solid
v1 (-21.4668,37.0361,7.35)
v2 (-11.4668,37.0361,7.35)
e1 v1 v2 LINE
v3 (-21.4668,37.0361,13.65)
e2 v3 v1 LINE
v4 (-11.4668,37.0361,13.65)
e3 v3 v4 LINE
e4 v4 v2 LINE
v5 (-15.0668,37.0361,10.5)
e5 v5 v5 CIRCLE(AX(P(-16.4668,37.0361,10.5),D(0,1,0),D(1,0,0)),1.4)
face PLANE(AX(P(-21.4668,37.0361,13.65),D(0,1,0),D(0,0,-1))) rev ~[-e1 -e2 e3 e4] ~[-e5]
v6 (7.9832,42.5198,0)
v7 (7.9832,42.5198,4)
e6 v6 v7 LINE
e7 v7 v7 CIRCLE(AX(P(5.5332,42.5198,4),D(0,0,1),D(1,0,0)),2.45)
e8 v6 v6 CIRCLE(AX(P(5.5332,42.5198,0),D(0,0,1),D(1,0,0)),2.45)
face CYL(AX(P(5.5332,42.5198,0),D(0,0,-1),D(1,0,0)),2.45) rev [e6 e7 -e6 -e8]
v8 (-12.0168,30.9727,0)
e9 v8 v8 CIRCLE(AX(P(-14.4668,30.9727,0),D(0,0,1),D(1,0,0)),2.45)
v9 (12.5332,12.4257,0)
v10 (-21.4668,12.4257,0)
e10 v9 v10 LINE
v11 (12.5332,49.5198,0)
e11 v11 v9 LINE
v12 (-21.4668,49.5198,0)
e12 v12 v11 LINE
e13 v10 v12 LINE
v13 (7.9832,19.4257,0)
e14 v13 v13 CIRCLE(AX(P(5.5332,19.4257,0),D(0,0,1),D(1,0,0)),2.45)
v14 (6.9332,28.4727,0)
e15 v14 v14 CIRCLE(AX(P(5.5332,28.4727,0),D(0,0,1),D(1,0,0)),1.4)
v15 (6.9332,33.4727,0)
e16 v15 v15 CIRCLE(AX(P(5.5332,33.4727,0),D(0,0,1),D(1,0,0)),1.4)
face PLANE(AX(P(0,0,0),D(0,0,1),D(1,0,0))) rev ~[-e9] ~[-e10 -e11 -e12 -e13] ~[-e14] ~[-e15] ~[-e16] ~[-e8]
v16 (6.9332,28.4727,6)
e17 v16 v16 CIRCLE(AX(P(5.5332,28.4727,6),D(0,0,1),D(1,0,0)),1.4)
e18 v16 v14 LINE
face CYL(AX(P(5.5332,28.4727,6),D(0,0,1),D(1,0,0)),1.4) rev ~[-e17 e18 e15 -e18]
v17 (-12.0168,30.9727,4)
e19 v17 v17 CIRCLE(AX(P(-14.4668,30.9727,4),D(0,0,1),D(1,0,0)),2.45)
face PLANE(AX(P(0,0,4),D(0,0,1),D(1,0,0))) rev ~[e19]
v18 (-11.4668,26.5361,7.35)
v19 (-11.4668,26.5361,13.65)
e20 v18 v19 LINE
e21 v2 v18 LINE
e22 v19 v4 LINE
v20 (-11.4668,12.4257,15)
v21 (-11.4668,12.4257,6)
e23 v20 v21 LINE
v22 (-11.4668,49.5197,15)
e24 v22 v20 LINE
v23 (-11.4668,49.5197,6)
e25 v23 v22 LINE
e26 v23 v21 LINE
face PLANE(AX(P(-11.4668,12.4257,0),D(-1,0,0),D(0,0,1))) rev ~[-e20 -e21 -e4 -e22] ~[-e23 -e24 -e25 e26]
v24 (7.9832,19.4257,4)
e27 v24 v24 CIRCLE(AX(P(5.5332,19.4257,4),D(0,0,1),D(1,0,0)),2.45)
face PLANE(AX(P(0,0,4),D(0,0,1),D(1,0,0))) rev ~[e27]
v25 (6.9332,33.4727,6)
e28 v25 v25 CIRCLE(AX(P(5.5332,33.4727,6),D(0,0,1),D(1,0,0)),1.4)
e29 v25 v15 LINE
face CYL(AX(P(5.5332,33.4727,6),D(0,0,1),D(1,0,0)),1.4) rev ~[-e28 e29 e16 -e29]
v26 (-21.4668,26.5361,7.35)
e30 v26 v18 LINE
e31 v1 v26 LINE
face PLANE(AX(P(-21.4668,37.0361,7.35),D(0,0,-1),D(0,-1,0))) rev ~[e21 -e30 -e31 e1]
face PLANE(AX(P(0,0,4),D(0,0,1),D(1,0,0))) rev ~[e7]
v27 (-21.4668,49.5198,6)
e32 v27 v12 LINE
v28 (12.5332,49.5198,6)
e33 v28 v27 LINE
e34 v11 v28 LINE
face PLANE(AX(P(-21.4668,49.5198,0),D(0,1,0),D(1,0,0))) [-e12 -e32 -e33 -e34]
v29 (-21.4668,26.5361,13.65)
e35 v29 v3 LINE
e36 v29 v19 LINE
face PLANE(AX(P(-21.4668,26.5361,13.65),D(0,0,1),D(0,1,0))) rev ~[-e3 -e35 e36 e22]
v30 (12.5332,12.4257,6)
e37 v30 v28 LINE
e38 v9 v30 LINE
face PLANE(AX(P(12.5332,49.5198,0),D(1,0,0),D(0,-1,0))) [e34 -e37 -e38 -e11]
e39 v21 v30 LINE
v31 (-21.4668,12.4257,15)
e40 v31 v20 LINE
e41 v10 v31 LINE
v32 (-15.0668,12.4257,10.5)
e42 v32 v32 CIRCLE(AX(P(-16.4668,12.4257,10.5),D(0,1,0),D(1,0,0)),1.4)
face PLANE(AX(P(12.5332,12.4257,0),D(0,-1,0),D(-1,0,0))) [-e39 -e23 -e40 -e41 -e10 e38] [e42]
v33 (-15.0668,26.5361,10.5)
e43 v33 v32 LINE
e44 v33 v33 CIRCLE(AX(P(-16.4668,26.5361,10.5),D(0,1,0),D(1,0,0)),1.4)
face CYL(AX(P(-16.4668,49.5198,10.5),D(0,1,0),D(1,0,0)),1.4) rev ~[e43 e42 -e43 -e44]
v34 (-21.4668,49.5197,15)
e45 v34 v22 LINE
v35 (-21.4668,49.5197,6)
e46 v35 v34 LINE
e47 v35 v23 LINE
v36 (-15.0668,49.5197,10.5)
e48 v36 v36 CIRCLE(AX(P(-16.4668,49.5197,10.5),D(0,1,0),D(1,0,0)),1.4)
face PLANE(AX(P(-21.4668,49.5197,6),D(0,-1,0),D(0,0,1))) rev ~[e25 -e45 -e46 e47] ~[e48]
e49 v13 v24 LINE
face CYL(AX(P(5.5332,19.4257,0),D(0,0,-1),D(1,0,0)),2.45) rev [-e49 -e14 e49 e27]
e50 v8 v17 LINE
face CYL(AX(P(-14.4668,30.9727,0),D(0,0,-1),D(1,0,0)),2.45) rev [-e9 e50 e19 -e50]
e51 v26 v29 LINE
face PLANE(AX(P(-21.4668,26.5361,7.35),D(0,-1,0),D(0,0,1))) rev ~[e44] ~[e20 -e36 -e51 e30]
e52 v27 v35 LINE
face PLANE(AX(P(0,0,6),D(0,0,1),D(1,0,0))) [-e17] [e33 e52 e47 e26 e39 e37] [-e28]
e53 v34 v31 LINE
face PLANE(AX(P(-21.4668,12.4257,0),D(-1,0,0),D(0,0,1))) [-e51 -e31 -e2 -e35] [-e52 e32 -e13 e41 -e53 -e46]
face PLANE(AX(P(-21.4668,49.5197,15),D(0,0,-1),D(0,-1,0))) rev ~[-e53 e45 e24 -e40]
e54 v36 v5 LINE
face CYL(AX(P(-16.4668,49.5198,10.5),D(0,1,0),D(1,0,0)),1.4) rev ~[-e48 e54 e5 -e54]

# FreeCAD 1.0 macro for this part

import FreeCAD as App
import Part
import Sketcher
Q = App.Units.Quantity

doc = App.newDocument("Part")
body = doc.addObject("PartDesign::Body", "Body")

# Sketch on XY plane
sketch1 = body.newObject("Sketcher::SketchObject", "Sketch")
sketch1.AttachmentSupport = (doc.getObject("XY_Plane"), [""])
sketch1.MapMode = "FlatFace"
sketch1.addGeometry([
    Part.LineSegment(App.Vector(-21.5, 12.4, 0), App.Vector(12.5, 12.4, 0)),  # 0
    Part.LineSegment(App.Vector(12.5, 12.4, 0), App.Vector(12.5, 49.5, 0)),  # 1
    Part.LineSegment(App.Vector(12.5, 49.5, 0), App.Vector(-21.5, 49.5, 0)),  # 2
    Part.LineSegment(App.Vector(-21.5, 49.5, 0), App.Vector(-21.5, 12.4, 0)),  # 3
    Part.Circle(App.Vector(-14.5, 31, 0), App.Vector(0, 0, 1), 2.5),  # 4
    Part.Circle(App.Vector(5.5, 19.4, 0), App.Vector(0, 0, 1), 2.5),  # 5
    Part.Circle(App.Vector(5.5, 42.5, 0), App.Vector(0, 0, 1), 2.5),  # 6
], False)
sketch1.addConstraint([
    Sketcher.Constraint("Coincident", 0, 2, 1, 1),
    Sketcher.Constraint("Coincident", 1, 2, 2, 1),
    Sketcher.Constraint("Coincident", 2, 2, 3, 1),
    Sketcher.Constraint("Coincident", 3, 2, 0, 1),
    Sketcher.Constraint("Horizontal", 0),
    Sketcher.Constraint("Vertical", 1),
    Sketcher.Constraint("Horizontal", 2),
    Sketcher.Constraint("Vertical", 3),
    Sketcher.Constraint("Equal", 4, 5),
    Sketcher.Constraint("Equal", 5, 6),
    Sketcher.Constraint("Vertical", 5, 3, 6, 3),
    Sketcher.Constraint("Diameter", 4, Q("4.9 mm")),
    Sketcher.Constraint("DistanceX", 5, 3, 0, 2, Q("7 mm")),
    Sketcher.Constraint("DistanceY", 0, 2, 5, 3, Q("7 mm")),
    Sketcher.Constraint("DistanceY", 6, 3, 1, 2, Q("7 mm")),
    Sketcher.Constraint("DistanceX", 2, 2, 4, 3, Q("7 mm")),
    Sketcher.Constraint("DistanceX", 0, 1, 0, 2, Q("34 mm")),
    Sketcher.Constraint("DistanceY", 1, 1, 1, 2, Q("37.094 mm")),
    Sketcher.Constraint("DistanceY", 5, 3, 4, 3, Q("11.547 mm")),
    Sketcher.Constraint("DistanceX", 4, 3, -1, 1, Q("14.4668 mm")),
    Sketcher.Constraint("DistanceY", -1, 1, 4, 3, Q("30.9727 mm")),
])
pad1 = body.newObject("PartDesign::Pad", "Pad")
pad1.Profile = sketch1
pad1.Length = 4

# Sketch on XY plane
sketch2 = body.newObject("Sketcher::SketchObject", "Sketch001")
sketch2.AttachmentSupport = (doc.getObject("XY_Plane"), [""])
sketch2.MapMode = "FlatFace"
sketch2.AttachmentOffset = App.Placement(App.Vector(0, 0, 4), App.Rotation())
sketch2.addGeometry([
    Part.LineSegment(App.Vector(13, 12, 0), App.Vector(13, 50, 0)),
    Part.LineSegment(App.Vector(13, 50, 0), App.Vector(-21, 50, 0)),
    Part.LineSegment(App.Vector(-21, 50, 0), App.Vector(-21, 12, 0)),
    Part.LineSegment(App.Vector(-21, 12, 0), App.Vector(13, 12, 0)),
], False)
sketch2.addConstraint([
    Sketcher.Constraint("Coincident", 0, 2, 1, 1),
    Sketcher.Constraint("Coincident", 1, 2, 2, 1),
    Sketcher.Constraint("Coincident", 2, 2, 3, 1),
    Sketcher.Constraint("Coincident", 3, 2, 0, 1),
    Sketcher.Constraint("Vertical", 0),
    Sketcher.Constraint("Horizontal", 1),
    Sketcher.Constraint("Vertical", 2),
    Sketcher.Constraint("Horizontal", 3),
    Sketcher.Constraint("DistanceX", 1, 2, 1, 1, Q("34 mm")),
    Sketcher.Constraint("DistanceY", 0, 1, 0, 2, Q("37.094 mm")),
    Sketcher.Constraint("DistanceX", -1, 1, 0, 2, Q("12.5332 mm")),
    Sketcher.Constraint("DistanceY", -1, 1, 0, 2, Q("49.5198 mm")),
])
pad2 = body.newObject("PartDesign::Pad", "Pad001")
pad2.Profile = sketch2
pad2.Length = 2

# Sketch on YZ plane
sketch3 = body.newObject("Sketcher::SketchObject", "Sketch002")
sketch3.AttachmentSupport = (doc.getObject("YZ_Plane"), [""])
sketch3.MapMode = "FlatFace"
sketch3.AttachmentOffset = App.Placement(App.Vector(0, 0, -21.4668), App.Rotation())
sketch3.addGeometry([
    Part.LineSegment(App.Vector(49.5, 15, 0), App.Vector(49.5, 6, 0)),  # 0
    Part.LineSegment(App.Vector(49.5, 6, 0), App.Vector(12.4, 6, 0)),  # 1
    Part.LineSegment(App.Vector(12.4, 6, 0), App.Vector(12.4, 15, 0)),  # 2
    Part.LineSegment(App.Vector(12.4, 15, 0), App.Vector(49.5, 15, 0)),  # 3
    Part.Circle(App.Vector(31.2, 10.5, 0), App.Vector(0, 0, 1), 1.5),  # 4
], False)
sketch3.addConstraint([
    Sketcher.Constraint("Coincident", 0, 2, 1, 1),
    Sketcher.Constraint("Coincident", 1, 2, 2, 1),
    Sketcher.Constraint("Coincident", 2, 2, 3, 1),
    Sketcher.Constraint("Coincident", 3, 2, 0, 1),
    Sketcher.Constraint("Vertical", 0),
    Sketcher.Constraint("Horizontal", 1),
    Sketcher.Constraint("Vertical", 2),
    Sketcher.Constraint("Horizontal", 3),
    Sketcher.Constraint("Diameter", 4, Q("3 mm")),
    Sketcher.Constraint("DistanceY", 0, 2, 0, 1, Q("9 mm")),
    Sketcher.Constraint("DistanceY", -1, 1, 0, 2, Q("6 mm")),
    Sketcher.Constraint("DistanceY", -1, 1, 4, 3, Q("10.5 mm")),
    Sketcher.Constraint("DistanceX", 1, 2, 1, 1, Q("37.094 mm")),
    Sketcher.Constraint("DistanceX", -1, 1, 4, 3, Q("31.236 mm")),
    Sketcher.Constraint("DistanceX", -1, 1, 0, 2, Q("49.5197 mm")),
])
pad3 = body.newObject("PartDesign::Pad", "Pad002")
pad3.Profile = sketch3
pad3.Length = 10

# Sketch on YZ plane
sketch4 = body.newObject("Sketcher::SketchObject", "Sketch003")
sketch4.AttachmentSupport = (doc.getObject("YZ_Plane"), [""])
sketch4.MapMode = "FlatFace"
sketch4.AttachmentOffset = App.Placement(App.Vector(0, 0, -21.4668), App.Rotation())
sketch4.addGeometry([
    Part.LineSegment(App.Vector(27, 14, 0), App.Vector(37, 14, 0)),
    Part.LineSegment(App.Vector(37, 14, 0), App.Vector(37, 7, 0)),
    Part.LineSegment(App.Vector(37, 7, 0), App.Vector(27, 7, 0)),
    Part.LineSegment(App.Vector(27, 7, 0), App.Vector(27, 14, 0)),
], False)
sketch4.addConstraint([
    Sketcher.Constraint("Coincident", 0, 2, 1, 1),
    Sketcher.Constraint("Coincident", 1, 2, 2, 1),
    Sketcher.Constraint("Coincident", 2, 2, 3, 1),
    Sketcher.Constraint("Coincident", 3, 2, 0, 1),
    Sketcher.Constraint("Horizontal", 0),
    Sketcher.Constraint("Vertical", 1),
    Sketcher.Constraint("Horizontal", 2),
    Sketcher.Constraint("Vertical", 3),
    Sketcher.Constraint("DistanceX", 0, 1, 0, 2, Q("10.5 mm")),
    Sketcher.Constraint("DistanceY", 1, 2, 1, 1, Q("6.3 mm")),
    Sketcher.Constraint("DistanceY", -1, 1, 0, 2, Q("13.65 mm")),
    Sketcher.Constraint("DistanceX", -1, 1, 0, 2, Q("37.036 mm")),
])
pocket1 = body.newObject("PartDesign::Pocket", "Pocket")
pocket1.Profile = sketch4
pocket1.Length = 10
pocket1.Reversed = True

# Sketch on XZ plane
sketch5 = body.newObject("Sketcher::SketchObject", "Sketch004")
sketch5.AttachmentSupport = (doc.getObject("XZ_Plane"), [""])
sketch5.MapMode = "FlatFace"
sketch5.AttachmentOffset = App.Placement(App.Vector(0, 0, -49.5198), App.Rotation())
sketch5.addGeometry(Part.Circle(App.Vector(-16.5, 10.5, 0), App.Vector(0, 0, 1), 1.4), False)
sketch5.addConstraint([
    Sketcher.Constraint("Diameter", 0, Q("2.8 mm")),
    Sketcher.Constraint("DistanceY", -1, 1, 0, 3, Q("10.5 mm")),
    Sketcher.Constraint("DistanceX", 0, 3, -1, 1, Q("16.4668 mm")),
])
pocket2 = body.newObject("PartDesign::Pocket", "Pocket001")
pocket2.Profile = sketch5
pocket2.Type = "ThroughAll"
pocket2.Reversed = True

# Sketch on XY plane
sketch6 = body.newObject("Sketcher::SketchObject", "Sketch005")
sketch6.AttachmentSupport = (doc.getObject("XY_Plane"), [""])
sketch6.MapMode = "FlatFace"
sketch6.AttachmentOffset = App.Placement(App.Vector(0, 0, 6), App.Rotation())
sketch6.addGeometry([
    Part.Circle(App.Vector(5.5, 33.5, 0), App.Vector(0, 0, 1), 1.4),
    Part.Circle(App.Vector(5.5, 28.5, 0), App.Vector(0, 0, 1), 1.4),
], False)
sketch6.addConstraint([
    Sketcher.Constraint("Equal", 0, 1),
    Sketcher.Constraint("Vertical", 0, 3, 1, 3),
    Sketcher.Constraint("Diameter", 0, Q("2.8 mm")),
    Sketcher.Constraint("DistanceY", 1, 3, 0, 3, Q("5 mm")),
    Sketcher.Constraint("DistanceX", -1, 1, 0, 3, Q("5.5332 mm")),
    Sketcher.Constraint("DistanceY", -1, 1, 0, 3, Q("33.4727 mm")),
])
pocket3 = body.newObject("PartDesign::Pocket", "Pocket002")
pocket3.Profile = sketch6
pocket3.Type = "ThroughAll"
pocket3.Midplane = True

doc.recompute()
